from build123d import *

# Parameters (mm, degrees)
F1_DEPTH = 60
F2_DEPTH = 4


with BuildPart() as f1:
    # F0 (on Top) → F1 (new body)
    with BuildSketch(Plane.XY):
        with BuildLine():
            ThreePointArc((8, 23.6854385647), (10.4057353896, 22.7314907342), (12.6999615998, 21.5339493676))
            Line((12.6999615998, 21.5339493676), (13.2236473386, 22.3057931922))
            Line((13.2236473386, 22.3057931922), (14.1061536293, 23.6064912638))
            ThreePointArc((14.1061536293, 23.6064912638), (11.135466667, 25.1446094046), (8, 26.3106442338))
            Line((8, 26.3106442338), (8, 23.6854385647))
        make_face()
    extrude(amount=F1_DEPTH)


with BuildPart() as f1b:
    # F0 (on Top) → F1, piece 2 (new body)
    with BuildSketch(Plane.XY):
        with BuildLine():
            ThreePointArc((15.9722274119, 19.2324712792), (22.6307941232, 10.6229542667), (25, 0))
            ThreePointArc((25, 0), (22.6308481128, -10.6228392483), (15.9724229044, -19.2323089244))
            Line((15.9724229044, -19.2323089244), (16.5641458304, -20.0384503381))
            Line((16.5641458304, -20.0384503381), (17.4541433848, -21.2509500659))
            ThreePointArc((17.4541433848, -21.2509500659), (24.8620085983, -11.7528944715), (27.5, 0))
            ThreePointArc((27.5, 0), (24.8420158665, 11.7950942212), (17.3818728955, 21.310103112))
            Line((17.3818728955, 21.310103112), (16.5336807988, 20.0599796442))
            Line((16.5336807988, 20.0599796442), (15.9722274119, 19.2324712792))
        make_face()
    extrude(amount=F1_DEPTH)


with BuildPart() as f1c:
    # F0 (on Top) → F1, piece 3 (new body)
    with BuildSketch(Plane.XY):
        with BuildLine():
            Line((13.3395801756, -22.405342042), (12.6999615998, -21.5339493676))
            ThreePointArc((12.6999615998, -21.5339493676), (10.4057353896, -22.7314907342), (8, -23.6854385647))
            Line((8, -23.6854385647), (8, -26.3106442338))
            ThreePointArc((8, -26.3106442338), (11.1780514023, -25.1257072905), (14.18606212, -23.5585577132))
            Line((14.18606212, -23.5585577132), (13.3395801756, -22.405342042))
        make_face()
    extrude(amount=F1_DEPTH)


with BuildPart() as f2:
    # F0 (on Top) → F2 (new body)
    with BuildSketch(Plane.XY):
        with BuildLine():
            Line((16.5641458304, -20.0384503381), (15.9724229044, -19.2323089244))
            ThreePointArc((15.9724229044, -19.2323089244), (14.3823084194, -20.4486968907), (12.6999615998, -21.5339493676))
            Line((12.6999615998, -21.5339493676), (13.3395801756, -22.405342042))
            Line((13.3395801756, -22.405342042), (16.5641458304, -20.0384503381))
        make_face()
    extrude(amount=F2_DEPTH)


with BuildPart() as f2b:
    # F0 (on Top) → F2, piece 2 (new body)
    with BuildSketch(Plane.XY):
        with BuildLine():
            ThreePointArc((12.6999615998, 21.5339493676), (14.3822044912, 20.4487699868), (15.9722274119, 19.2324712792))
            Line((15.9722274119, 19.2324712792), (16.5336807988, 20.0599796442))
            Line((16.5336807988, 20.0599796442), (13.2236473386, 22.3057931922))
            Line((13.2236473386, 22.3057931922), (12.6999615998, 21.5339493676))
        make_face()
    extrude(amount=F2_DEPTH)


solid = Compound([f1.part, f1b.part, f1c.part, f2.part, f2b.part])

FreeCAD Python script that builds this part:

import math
import FreeCAD as App
import Part
import Sketcher
from FreeCAD import Vector

doc = App.newDocument("Part")
body = doc.addObject("PartDesign::Body", "Body")

sketch1 = body.newObject("Sketcher::SketchObject", "Sketch")
sketch1.AttachmentSupport = (doc.getObject("XY_Plane"), [""])
sketch1.MapMode = "FlatFace"
sketch1.addGeometry(Part.ArcOfCircle(Part.Circle(Vector(0, 0, 0), Vector(0, 0, 1), 25), math.radians(59.47), math.radians(71.34)), False)
sketch1.addGeometry(Part.LineSegment(Vector(12.7, 21.5, 0), Vector(13.2, 22.3, 0)), False)
sketch1.addGeometry(Part.LineSegment(Vector(13.2, 22.3, 0), Vector(14.1, 23.6, 0)), False)
sketch1.addGeometry(Part.ArcOfCircle(Part.Circle(Vector(0, 0, 0), Vector(0, 0, 1), 27.5), math.radians(59.14), math.radians(73.09)), False)
sketch1.addGeometry(Part.LineSegment(Vector(8, 26.3, 0), Vector(8, 23.7, 0)), False)
sketch1.addConstraint(Sketcher.Constraint("Coincident", 0, 1, 1, 1))
sketch1.addConstraint(Sketcher.Constraint("Coincident", 1, 2, 2, 1))
sketch1.addConstraint(Sketcher.Constraint("Coincident", 2, 2, 3, 1))
sketch1.addConstraint(Sketcher.Constraint("Coincident", 3, 2, 4, 1))
sketch1.addConstraint(Sketcher.Constraint("Coincident", 4, 2, 0, 2))
sketch1.addConstraint(Sketcher.Constraint("Vertical", 4))
sketch1.addConstraint(Sketcher.Constraint("Coincident", 0, 3, -1, 1))
sketch1.addConstraint(Sketcher.Constraint("Coincident", 3, 3, -1, 1))
sketch1.addConstraint(Sketcher.Constraint("Parallel", 1, 2))
sketch1.addConstraint(Sketcher.Constraint("Radius", 0, 25.0))
sketch1.addConstraint(Sketcher.Constraint("Radius", 3, 27.5))
sketch1.addConstraint(Sketcher.Constraint("DistanceX", -1, 1, 3, 2, 8.0))
sketch1.addConstraint(Sketcher.Constraint("DistanceY", 1, 2, 2, 2, 1.300698))
sketch1.addConstraint(Sketcher.Constraint("DistanceX", -1, 1, 0, 1, 12.699962))
sketch1.addConstraint(Sketcher.Constraint("DistanceY", -1, 1, 2, 2, 23.606491))
pad1 = body.newObject("PartDesign::Pad", "Pad")
pad1.Profile = sketch1
pad1.Length = 60
body2 = doc.addObject("PartDesign::Body", "Body001")

sketch2 = body2.newObject("Sketcher::SketchObject", "Sketch001")
sketch2.AttachmentSupport = (doc.getObject("XY_Plane001"), [""])
sketch2.MapMode = "FlatFace"
sketch2.addGeometry(Part.ArcOfCircle(Part.Circle(Vector(0, 0, 0), Vector(0, 0, 1), 25), math.radians(0), math.radians(50)), False)
sketch2.addGeometry(Part.ArcOfCircle(Part.Circle(Vector(0, 0, 0), Vector(0, 0, 1), 25), math.radians(-50), math.radians(0)), False)
sketch2.addGeometry(Part.LineSegment(Vector(16, -19.2, 0), Vector(16.6, -20, 0)), False)
sketch2.addGeometry(Part.LineSegment(Vector(16.6, -20, 0), Vector(17.5, -21.3, 0)), False)
sketch2.addGeometry(Part.ArcOfCircle(Part.Circle(Vector(0, 0, 0), Vector(0, 0, 1), 27.5), math.radians(-51), math.radians(0)), False)
sketch2.addGeometry(Part.ArcOfCircle(Part.Circle(Vector(0, 0, 0), Vector(0, 0, 1), 27.5), math.radians(0), math.radians(51)), False)
sketch2.addGeometry(Part.LineSegment(Vector(17.4, 21.3, 0), Vector(16.5, 20.1, 0)), False)
sketch2.addGeometry(Part.LineSegment(Vector(16.5, 20.1, 0), Vector(16, 19.2, 0)), False)
sketch2.addConstraint(Sketcher.Constraint("Tangent", 0, 1, 1, 2))
sketch2.addConstraint(Sketcher.Constraint("Coincident", 1, 1, 2, 1))
sketch2.addConstraint(Sketcher.Constraint("Coincident", 2, 2, 3, 1))
sketch2.addConstraint(Sketcher.Constraint("Coincident", 3, 2, 4, 1))
sketch2.addConstraint(Sketcher.Constraint("Tangent", 4, 2, 5, 1))
sketch2.addConstraint(Sketcher.Constraint("Coincident", 5, 2, 6, 1))
sketch2.addConstraint(Sketcher.Constraint("Coincident", 6, 2, 7, 1))
sketch2.addConstraint(Sketcher.Constraint("Coincident", 7, 2, 0, 2))
sketch2.addConstraint(Sketcher.Constraint("Coincident", 0, 3, -1, 1))
sketch2.addConstraint(Sketcher.Constraint("Coincident", 4, 3, -1, 1))
sketch2.addConstraint(Sketcher.Constraint("Equal", 0, 1))
sketch2.addConstraint(Sketcher.Constraint("Equal", 4, 5))
sketch2.addConstraint(Sketcher.Constraint("PointOnObject", 0, 1, -1))
sketch2.addConstraint(Sketcher.Constraint("PointOnObject", 4, 2, -1))
sketch2.addConstraint(Sketcher.Constraint("Parallel", 2, 3))
sketch2.addConstraint(Sketcher.Constraint("Parallel", 6, 7))
sketch2.addConstraint(Sketcher.Constraint("Equal", 2, 7))
sketch2.addConstraint(Sketcher.Constraint("Radius", 0, 25.0))
sketch2.addConstraint(Sketcher.Constraint("Radius", 4, 27.5))
sketch2.addConstraint(Sketcher.Constraint("Distance", 2, 1.0))
sketch2.addConstraint(Sketcher.Constraint("DistanceY", 3, 2, 2, 2, 1.2125))
sketch2.addConstraint(Sketcher.Constraint("DistanceY", 1, 1, -1, 1, 19.232309))
sketch2.addConstraint(Sketcher.Constraint("DistanceX", -1, 1, 6, 2, 16.533681))
sketch2.addConstraint(Sketcher.Constraint("DistanceY", -1, 1, 6, 2, 20.05998))
pad2 = body2.newObject("PartDesign::Pad", "Pad001")
pad2.Profile = sketch2
pad2.Length = 60
body3 = doc.addObject("PartDesign::Body", "Body002")

sketch3 = body3.newObject("Sketcher::SketchObject", "Sketch002")
sketch3.AttachmentSupport = (doc.getObject("XY_Plane002"), [""])
sketch3.MapMode = "FlatFace"
sketch3.addGeometry(Part.LineSegment(Vector(13.3, -22.4, 0), Vector(12.7, -21.5, 0)), False)
sketch3.addGeometry(Part.ArcOfCircle(Part.Circle(Vector(0, 0, 0), Vector(0, 0, 1), 25), math.radians(-71.34), math.radians(-59.47)), False)
sketch3.addGeometry(Part.LineSegment(Vector(8, -23.7, 0), Vector(8, -26.3, 0)), False)
sketch3.addGeometry(Part.ArcOfCircle(Part.Circle(Vector(0, 0, 0), Vector(0, 0, 1), 27.5), math.radians(-73.09), math.radians(-58.95)), False)
sketch3.addGeometry(Part.LineSegment(Vector(14.2, -23.6, 0), Vector(13.3, -22.4, 0)), False)
sketch3.addConstraint(Sketcher.Constraint("Coincident", 0, 2, 1, 2))
sketch3.addConstraint(Sketcher.Constraint("Coincident", 1, 1, 2, 1))
sketch3.addConstraint(Sketcher.Constraint("Coincident", 2, 2, 3, 1))
sketch3.addConstraint(Sketcher.Constraint("Coincident", 3, 2, 4, 1))
sketch3.addConstraint(Sketcher.Constraint("Coincident", 4, 2, 0, 1))
sketch3.addConstraint(Sketcher.Constraint("Vertical", 2))
sketch3.addConstraint(Sketcher.Constraint("Coincident", 1, 3, -1, 1))
sketch3.addConstraint(Sketcher.Constraint("Coincident", 3, 3, -1, 1))
sketch3.addConstraint(Sketcher.Constraint("Parallel", 0, 4))
sketch3.addConstraint(Sketcher.Constraint("Radius", 1, 25.0))
sketch3.addConstraint(Sketcher.Constraint("Radius", 3, 27.5))
sketch3.addConstraint(Sketcher.Constraint("DistanceX", -1, 1, 1, 1, 8.0))
sketch3.addConstraint(Sketcher.Constraint("DistanceX", 0, 2, 3, 2, 1.486101))
sketch3.addConstraint(Sketcher.Constraint("DistanceX", -1, 1, 0, 2, 12.699962))
sketch3.addConstraint(Sketcher.Constraint("DistanceX", -1, 1, 4, 2, 13.33958))
pad3 = body3.newObject("PartDesign::Pad", "Pad002")
pad3.Profile = sketch3
pad3.Length = 60
body4 = doc.addObject("PartDesign::Body", "Body003")

sketch4 = body4.newObject("Sketcher::SketchObject", "Sketch003")
sketch4.AttachmentSupport = (doc.getObject("XY_Plane003"), [""])
sketch4.MapMode = "FlatFace"
sketch4.addGeometry(Part.LineSegment(Vector(16.6, -20, 0), Vector(16, -19.2, 0)), False)
sketch4.addGeometry(Part.ArcOfCircle(Part.Circle(Vector(0, 0, 0), Vector(0, 0, 1), 25), math.radians(-59.47), math.radians(-50.29)), False)
sketch4.addGeometry(Part.LineSegment(Vector(12.7, -21.5, 0), Vector(13.3, -22.4, 0)), False)
sketch4.addGeometry(Part.LineSegment(Vector(13.3, -22.4, 0), Vector(16.6, -20, 0)), False)
sketch4.addConstraint(Sketcher.Constraint("Coincident", 0, 2, 1, 2))
sketch4.addConstraint(Sketcher.Constraint("Coincident", 1, 1, 2, 1))
sketch4.addConstraint(Sketcher.Constraint("Coincident", 2, 2, 3, 1))
sketch4.addConstraint(Sketcher.Constraint("Coincident", 3, 2, 0, 1))
sketch4.addConstraint(Sketcher.Constraint("Coincident", 1, 3, -1, 1))
sketch4.addConstraint(Sketcher.Constraint("Parallel", 0, 2))
sketch4.addConstraint(Sketcher.Constraint("Perpendicular", 2, 3))
sketch4.addConstraint(Sketcher.Constraint("Radius", 1, 25.0))
sketch4.addConstraint(Sketcher.Constraint("Distance", 0, 1.0))
sketch4.addConstraint(Sketcher.Constraint("Distance", 3, 4.0))
sketch4.addConstraint(Sketcher.Constraint("DistanceY", 1, 1, 3, 2, 1.495499))
sketch4.addConstraint(Sketcher.Constraint("DistanceY", 0, 2, -1, 1, 19.232309))
pad4 = body4.newObject("PartDesign::Pad", "Pad003")
pad4.Profile = sketch4
pad4.Length = 4
body5 = doc.addObject("PartDesign::Body", "Body004")

sketch5 = body5.newObject("Sketcher::SketchObject", "Sketch004")
sketch5.AttachmentSupport = (doc.getObject("XY_Plane004"), [""])
sketch5.MapMode = "FlatFace"
sketch5.addGeometry(Part.ArcOfCircle(Part.Circle(Vector(0, 0, 0), Vector(0, 0, 1), 25), math.radians(50.29), math.radians(59.47)), False)
sketch5.addGeometry(Part.LineSegment(Vector(16, 19.2, 0), Vector(16.5, 20.1, 0)), False)
sketch5.addGeometry(Part.LineSegment(Vector(16.5, 20.1, 0), Vector(13.2, 22.3, 0)), False)
sketch5.addGeometry(Part.LineSegment(Vector(13.2, 22.3, 0), Vector(12.7, 21.5, 0)), False)
sketch5.addConstraint(Sketcher.Constraint("Coincident", 0, 1, 1, 1))
sketch5.addConstraint(Sketcher.Constraint("Coincident", 1, 2, 2, 1))
sketch5.addConstraint(Sketcher.Constraint("Coincident", 2, 2, 3, 1))
sketch5.addConstraint(Sketcher.Constraint("Coincident", 3, 2, 0, 2))
sketch5.addConstraint(Sketcher.Constraint("Coincident", 0, 3, -1, 1))
sketch5.addConstraint(Sketcher.Constraint("Perpendicular", 1, 2))
sketch5.addConstraint(Sketcher.Constraint("Perpendicular", 2, 3))
sketch5.addConstraint(Sketcher.Constraint("Radius", 0, 25.0))
sketch5.addConstraint(Sketcher.Constraint("Distance", 1, 1.0))
sketch5.addConstraint(Sketcher.Constraint("Distance", 2, 4.0))
sketch5.addConstraint(Sketcher.Constraint("DistanceY", -1, 1, 0, 1, 19.232471))
sketch5.addConstraint(Sketcher.Constraint("DistanceX", -1, 1, 1, 2, 16.533681))
pad5 = body5.newObject("PartDesign::Pad", "Pad004")
pad5.Profile = sketch5
pad5.Length = 4

doc.recompute()
